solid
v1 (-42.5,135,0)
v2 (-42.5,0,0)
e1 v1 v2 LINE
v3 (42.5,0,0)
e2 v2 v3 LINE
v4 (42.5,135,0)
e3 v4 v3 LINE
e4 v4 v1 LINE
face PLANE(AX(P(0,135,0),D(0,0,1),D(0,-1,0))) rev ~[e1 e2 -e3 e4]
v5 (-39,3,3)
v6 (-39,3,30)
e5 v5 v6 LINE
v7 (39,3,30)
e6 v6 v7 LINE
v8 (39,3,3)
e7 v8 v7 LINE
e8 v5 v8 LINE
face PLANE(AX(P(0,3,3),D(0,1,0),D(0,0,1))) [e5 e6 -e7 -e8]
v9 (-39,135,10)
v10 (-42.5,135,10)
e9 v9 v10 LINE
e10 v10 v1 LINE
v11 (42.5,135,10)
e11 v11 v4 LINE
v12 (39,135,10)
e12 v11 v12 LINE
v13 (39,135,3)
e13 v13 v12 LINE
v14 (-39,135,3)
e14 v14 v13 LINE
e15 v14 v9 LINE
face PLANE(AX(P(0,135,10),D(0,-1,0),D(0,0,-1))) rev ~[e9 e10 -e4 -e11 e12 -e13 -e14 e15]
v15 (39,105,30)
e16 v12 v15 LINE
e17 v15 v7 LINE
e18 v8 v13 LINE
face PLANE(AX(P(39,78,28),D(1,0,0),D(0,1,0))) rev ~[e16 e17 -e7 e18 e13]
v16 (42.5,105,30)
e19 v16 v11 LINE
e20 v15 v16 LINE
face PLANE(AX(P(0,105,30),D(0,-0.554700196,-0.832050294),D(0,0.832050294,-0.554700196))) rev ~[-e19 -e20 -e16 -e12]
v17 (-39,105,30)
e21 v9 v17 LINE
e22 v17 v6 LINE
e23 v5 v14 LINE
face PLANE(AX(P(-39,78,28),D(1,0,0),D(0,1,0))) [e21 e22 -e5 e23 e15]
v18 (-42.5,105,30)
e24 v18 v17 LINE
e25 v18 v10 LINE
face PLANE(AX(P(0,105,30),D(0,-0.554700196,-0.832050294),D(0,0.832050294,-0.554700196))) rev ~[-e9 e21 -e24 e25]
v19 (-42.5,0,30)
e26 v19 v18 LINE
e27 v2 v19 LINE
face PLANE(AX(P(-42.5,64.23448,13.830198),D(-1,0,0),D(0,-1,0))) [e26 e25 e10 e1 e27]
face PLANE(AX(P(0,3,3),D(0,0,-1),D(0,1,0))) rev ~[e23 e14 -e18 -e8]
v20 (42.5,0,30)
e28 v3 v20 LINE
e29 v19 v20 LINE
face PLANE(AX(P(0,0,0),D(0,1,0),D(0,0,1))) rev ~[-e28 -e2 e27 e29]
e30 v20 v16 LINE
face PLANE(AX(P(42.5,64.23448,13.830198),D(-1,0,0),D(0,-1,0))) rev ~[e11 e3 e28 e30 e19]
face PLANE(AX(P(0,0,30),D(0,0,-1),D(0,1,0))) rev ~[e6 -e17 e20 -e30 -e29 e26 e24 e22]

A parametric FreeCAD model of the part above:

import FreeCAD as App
import Part
import Sketcher
Q = App.Units.Quantity


def add_polygon(sketch, points):
    """Adds a closed chain of lines whose ends are joined by coincident constraints."""
    first, n = sketch.GeometryCount, len(points)
    for a, b in zip(points, points[1:] + points[:1]):
        sketch.addGeometry(Part.LineSegment(App.Vector(*a, 0), App.Vector(*b, 0)), False)
    for i in range(n):
        sketch.addConstraint(Sketcher.Constraint("Coincident", first + i, 2, first + (i + 1) % n, 1))

doc = App.newDocument("Part")
params = doc.addObject("Spreadsheet::Sheet", "Params")
for row, (alias, value) in enumerate([
    ("sketch1_width", "105 mm"),
    ("sketch1_width2", "135 mm"),
    ("sketch1_height", "30 mm"),
    ("sketch1_height2", "10 mm"),
    ("pad1_length", "85 mm"),
    ("sketch2_width", "150 mm"),
    ("sketch2_height", "50 mm"),
    ("pocket1_length", "78 mm"),
], start=1):
    params.set(f"A{row}", alias)
    params.set(f"B{row}", "=" + value)
    params.setAlias(f"B{row}", alias)

body = doc.addObject("PartDesign::Body", "Body")

# Sketch on YZ plane
sketch1 = body.newObject("Sketcher::SketchObject", "Sketch")
sketch1.AttachmentSupport = (doc.getObject("YZ_Plane"), [""])
sketch1.MapMode = "FlatFace"
add_polygon(sketch1, [(135, 10), (105, 30), (0, 30), (0, 0), (135, 0)])  # lines 0-4
sketch1.addConstraint([
    Sketcher.Constraint("Horizontal", 1),
    Sketcher.Constraint("Vertical", 2),
    Sketcher.Constraint("Horizontal", 3),
    Sketcher.Constraint("Vertical", 4),
    Sketcher.Constraint("Coincident", 2, 2, -1, 1),
    Sketcher.Constraint("DistanceX", 1, 2, 1, 1, Q("105 mm")),
    Sketcher.Constraint("DistanceX", 3, 1, 3, 2, Q("135 mm")),
    Sketcher.Constraint("DistanceY", 2, 2, 2, 1, Q("30 mm")),
    Sketcher.Constraint("DistanceY", 4, 1, 4, 2, Q("10 mm")),
])
sketch1.setExpression("Constraints[10]", "Params.sketch1_width")
sketch1.setExpression("Constraints[11]", "Params.sketch1_width2")
sketch1.setExpression("Constraints[12]", "Params.sketch1_height")
sketch1.setExpression("Constraints[13]", "Params.sketch1_height2")
pad1 = body.newObject("PartDesign::Pad", "Pad")
pad1.Profile = sketch1
pad1.setExpression("Length", "Params.pad1_length")
pad1.Midplane = True

# Sketch on YZ plane
sketch2 = body.newObject("Sketcher::SketchObject", "Sketch001")
sketch2.AttachmentSupport = (doc.getObject("YZ_Plane"), [""])
sketch2.MapMode = "FlatFace"
add_polygon(sketch2, [(3, 53), (3, 3), (153, 3), (153, 53)])  # lines 0-3
sketch2.addConstraint([
    Sketcher.Constraint("Vertical", 0),
    Sketcher.Constraint("Horizontal", 1),
    Sketcher.Constraint("Vertical", 2),
    Sketcher.Constraint("Horizontal", 3),
    Sketcher.Constraint("DistanceX", 1, 1, 1, 2, Q("150 mm")),
    Sketcher.Constraint("DistanceY", 0, 2, 0, 1, Q("50 mm")),
    Sketcher.Constraint("DistanceX", -1, 1, 0, 2, Q("3 mm")),
    Sketcher.Constraint("DistanceY", -1, 1, 0, 2, Q("3 mm")),
])
sketch2.setExpression("Constraints[8]", "Params.sketch2_width")
sketch2.setExpression("Constraints[9]", "Params.sketch2_height")
pocket1 = body.newObject("PartDesign::Pocket", "Pocket")
pocket1.Profile = sketch2
pocket1.setExpression("Length", "Params.pocket1_length")
pocket1.Midplane = True

doc.recompute()
